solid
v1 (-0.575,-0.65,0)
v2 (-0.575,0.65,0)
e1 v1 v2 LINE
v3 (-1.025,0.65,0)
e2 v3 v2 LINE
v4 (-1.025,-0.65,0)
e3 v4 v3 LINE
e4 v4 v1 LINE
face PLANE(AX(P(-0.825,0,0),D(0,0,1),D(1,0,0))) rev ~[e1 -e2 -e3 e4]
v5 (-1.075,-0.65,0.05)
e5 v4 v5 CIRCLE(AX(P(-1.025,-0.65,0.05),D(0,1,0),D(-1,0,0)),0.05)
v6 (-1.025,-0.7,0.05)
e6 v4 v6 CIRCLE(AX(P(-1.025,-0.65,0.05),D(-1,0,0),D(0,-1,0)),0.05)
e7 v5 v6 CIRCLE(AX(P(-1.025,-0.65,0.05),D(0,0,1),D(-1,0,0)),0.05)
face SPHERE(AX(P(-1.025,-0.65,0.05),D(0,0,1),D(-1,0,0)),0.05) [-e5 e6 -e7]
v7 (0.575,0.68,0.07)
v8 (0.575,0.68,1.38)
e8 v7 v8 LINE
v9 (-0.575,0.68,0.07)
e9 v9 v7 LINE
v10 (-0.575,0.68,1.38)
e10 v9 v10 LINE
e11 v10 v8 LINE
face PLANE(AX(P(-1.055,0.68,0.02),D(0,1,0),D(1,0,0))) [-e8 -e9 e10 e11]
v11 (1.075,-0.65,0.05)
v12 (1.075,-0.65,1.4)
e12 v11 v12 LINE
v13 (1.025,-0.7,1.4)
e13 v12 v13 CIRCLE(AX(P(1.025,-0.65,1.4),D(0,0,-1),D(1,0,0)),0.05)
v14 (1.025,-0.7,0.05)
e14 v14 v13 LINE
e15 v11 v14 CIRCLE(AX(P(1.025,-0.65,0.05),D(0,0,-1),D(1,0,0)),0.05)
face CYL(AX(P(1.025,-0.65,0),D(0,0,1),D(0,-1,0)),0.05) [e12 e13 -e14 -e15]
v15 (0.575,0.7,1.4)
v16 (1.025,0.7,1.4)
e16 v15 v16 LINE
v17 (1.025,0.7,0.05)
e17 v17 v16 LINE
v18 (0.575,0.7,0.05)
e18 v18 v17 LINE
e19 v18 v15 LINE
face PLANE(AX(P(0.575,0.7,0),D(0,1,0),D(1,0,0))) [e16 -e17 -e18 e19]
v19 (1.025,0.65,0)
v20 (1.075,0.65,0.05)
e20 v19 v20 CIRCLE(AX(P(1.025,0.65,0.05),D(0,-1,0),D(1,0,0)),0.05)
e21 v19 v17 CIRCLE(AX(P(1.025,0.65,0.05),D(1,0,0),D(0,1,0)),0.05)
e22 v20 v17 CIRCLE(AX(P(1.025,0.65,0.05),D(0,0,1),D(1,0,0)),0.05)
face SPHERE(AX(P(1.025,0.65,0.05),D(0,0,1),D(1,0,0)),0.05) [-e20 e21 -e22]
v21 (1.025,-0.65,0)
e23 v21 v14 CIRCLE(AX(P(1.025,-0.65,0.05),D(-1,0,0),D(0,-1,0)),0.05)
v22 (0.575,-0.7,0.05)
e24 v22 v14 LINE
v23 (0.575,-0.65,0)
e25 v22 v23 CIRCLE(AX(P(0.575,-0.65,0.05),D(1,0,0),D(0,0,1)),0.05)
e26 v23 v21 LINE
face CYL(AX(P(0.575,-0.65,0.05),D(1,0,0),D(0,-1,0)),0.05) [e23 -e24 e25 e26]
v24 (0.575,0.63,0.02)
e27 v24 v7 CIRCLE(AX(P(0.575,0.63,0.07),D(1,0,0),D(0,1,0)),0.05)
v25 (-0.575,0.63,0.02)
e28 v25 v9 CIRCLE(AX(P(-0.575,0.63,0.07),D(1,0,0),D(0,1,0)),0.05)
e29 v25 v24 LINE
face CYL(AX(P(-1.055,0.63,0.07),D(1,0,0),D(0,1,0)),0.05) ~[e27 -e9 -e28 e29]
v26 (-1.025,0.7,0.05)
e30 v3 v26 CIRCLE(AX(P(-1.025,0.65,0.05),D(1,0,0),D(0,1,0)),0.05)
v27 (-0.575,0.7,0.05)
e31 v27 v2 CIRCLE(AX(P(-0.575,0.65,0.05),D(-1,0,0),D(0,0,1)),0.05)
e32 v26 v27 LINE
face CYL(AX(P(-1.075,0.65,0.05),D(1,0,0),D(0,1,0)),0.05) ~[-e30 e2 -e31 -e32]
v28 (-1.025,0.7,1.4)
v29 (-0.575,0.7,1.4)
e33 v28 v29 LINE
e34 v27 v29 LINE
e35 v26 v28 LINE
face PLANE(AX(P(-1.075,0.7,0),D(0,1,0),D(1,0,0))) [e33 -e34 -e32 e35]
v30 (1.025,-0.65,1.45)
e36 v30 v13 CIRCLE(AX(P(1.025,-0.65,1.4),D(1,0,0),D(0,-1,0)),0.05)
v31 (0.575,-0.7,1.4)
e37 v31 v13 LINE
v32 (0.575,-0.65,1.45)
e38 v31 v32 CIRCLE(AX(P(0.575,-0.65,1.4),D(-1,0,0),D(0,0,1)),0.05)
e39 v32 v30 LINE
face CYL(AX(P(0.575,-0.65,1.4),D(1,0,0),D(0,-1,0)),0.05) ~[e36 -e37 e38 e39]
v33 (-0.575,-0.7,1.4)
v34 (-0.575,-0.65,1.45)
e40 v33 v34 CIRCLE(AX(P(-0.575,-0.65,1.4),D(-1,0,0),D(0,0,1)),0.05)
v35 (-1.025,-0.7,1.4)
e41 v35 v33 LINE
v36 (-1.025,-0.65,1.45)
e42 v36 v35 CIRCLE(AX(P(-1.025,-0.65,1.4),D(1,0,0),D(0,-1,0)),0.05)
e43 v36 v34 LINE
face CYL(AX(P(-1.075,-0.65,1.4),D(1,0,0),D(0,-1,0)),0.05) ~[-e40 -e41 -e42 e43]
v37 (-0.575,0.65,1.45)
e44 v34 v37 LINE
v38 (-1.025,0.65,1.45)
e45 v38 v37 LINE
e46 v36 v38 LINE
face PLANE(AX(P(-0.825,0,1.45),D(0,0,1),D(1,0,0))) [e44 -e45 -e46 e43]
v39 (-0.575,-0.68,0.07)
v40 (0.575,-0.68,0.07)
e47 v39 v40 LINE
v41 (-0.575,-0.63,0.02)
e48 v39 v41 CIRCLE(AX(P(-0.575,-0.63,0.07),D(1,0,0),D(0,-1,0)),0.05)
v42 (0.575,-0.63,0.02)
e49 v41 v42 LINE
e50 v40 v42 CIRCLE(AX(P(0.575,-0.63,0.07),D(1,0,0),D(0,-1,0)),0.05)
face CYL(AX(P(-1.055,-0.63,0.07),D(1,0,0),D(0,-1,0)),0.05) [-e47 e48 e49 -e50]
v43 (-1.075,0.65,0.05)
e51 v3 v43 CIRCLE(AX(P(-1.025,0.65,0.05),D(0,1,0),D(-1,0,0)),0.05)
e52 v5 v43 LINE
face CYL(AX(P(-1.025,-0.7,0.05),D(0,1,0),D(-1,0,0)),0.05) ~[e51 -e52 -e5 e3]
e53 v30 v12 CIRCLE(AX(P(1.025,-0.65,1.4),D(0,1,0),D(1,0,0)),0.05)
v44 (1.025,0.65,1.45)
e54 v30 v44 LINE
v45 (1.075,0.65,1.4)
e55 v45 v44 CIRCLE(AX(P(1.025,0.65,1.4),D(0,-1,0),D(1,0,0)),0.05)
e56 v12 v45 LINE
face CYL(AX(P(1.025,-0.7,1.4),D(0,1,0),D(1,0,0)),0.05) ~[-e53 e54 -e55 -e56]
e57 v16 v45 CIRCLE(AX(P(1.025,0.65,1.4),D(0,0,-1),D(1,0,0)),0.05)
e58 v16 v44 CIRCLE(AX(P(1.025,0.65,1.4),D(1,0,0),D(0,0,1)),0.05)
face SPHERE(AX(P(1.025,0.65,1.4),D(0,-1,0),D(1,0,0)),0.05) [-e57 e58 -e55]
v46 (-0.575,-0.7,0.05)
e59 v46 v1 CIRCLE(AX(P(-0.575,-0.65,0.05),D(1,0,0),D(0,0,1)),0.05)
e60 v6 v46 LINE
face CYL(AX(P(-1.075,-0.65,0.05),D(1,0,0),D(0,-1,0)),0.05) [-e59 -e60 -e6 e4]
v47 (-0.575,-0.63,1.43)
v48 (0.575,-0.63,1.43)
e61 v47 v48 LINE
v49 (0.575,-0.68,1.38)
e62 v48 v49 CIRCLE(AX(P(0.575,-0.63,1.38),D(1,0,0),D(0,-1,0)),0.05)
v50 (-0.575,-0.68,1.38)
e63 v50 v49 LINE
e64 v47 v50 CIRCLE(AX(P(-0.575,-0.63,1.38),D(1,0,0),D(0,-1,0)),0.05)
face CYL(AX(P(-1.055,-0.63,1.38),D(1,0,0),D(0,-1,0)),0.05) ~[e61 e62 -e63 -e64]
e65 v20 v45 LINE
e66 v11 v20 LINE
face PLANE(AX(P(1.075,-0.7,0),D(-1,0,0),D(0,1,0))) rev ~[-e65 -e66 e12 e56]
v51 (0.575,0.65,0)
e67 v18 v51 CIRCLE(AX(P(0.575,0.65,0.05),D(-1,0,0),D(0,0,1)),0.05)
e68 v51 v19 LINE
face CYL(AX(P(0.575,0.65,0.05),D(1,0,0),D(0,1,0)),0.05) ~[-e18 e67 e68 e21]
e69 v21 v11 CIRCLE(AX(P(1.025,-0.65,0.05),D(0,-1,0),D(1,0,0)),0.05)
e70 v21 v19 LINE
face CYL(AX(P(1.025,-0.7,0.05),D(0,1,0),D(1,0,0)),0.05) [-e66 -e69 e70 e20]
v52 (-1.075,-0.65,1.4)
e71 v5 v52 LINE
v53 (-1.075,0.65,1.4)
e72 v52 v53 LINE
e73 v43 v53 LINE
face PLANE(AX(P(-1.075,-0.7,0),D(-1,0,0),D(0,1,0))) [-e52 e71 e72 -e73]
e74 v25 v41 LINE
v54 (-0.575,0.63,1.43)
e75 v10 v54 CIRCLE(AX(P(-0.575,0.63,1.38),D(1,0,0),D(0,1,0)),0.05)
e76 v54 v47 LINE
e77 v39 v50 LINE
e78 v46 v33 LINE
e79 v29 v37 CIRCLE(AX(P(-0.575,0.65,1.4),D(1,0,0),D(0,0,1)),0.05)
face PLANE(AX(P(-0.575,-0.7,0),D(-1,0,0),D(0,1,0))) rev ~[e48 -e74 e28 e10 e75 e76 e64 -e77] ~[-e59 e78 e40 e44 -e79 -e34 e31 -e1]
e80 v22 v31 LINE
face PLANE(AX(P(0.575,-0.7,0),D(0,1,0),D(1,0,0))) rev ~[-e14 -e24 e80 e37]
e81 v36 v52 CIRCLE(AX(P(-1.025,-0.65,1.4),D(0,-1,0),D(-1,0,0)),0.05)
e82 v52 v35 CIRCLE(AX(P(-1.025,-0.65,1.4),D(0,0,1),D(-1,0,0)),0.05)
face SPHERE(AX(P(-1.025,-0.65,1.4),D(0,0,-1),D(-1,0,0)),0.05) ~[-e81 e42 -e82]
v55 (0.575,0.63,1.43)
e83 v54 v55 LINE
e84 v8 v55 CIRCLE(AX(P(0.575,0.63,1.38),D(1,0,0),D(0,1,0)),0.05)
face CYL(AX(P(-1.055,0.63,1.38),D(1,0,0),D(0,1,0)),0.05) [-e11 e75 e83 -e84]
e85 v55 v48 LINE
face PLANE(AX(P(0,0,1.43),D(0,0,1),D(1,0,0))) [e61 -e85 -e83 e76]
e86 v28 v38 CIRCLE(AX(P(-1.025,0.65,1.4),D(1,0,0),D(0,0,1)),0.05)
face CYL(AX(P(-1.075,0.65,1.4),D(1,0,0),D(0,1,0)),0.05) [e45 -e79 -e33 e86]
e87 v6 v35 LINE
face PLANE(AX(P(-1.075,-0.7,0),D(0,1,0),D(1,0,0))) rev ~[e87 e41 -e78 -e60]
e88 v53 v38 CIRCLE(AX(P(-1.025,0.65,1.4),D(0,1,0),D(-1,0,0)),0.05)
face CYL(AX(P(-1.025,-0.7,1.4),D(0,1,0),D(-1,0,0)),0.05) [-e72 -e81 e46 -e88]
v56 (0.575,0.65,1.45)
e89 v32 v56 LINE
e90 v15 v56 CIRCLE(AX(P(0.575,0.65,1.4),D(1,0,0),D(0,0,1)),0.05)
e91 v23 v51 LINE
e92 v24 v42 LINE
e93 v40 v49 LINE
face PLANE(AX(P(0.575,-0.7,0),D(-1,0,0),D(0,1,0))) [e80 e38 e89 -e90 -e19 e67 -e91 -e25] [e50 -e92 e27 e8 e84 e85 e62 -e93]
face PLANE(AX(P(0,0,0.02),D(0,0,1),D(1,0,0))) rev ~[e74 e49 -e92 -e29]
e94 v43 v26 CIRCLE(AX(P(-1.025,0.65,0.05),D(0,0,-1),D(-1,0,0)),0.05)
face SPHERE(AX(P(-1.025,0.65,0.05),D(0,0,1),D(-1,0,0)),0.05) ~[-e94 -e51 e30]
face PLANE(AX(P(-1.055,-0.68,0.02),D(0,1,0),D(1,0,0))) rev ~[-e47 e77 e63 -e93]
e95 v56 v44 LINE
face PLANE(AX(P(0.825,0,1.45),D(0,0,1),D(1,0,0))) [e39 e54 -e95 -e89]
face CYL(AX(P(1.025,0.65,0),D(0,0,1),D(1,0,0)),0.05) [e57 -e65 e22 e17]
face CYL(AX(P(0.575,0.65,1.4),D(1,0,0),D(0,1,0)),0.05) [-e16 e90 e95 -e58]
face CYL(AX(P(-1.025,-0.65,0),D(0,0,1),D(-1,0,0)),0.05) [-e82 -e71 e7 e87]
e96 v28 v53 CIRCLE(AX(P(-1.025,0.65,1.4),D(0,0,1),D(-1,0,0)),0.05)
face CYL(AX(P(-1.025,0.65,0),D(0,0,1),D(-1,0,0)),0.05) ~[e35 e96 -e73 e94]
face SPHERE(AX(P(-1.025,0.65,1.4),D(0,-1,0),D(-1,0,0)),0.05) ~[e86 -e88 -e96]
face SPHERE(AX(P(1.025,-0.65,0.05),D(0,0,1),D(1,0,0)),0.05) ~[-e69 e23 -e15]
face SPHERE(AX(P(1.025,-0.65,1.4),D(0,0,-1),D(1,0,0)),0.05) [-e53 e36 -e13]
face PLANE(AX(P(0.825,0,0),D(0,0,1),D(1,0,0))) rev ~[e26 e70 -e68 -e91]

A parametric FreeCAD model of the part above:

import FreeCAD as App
import Part
import Sketcher

V = App.Vector


def edges_at(feature, points):
    """Names of the edges that pass closest to the given points."""
    edges = feature.Shape.Edges
    near = lambda p: min(range(len(edges)), key=lambda i: edges[i].distToShape(Part.Vertex(*p))[0])
    return sorted({f"Edge{near(p) + 1}" for p in points})


def add_polygon(sketch, points):
    """Adds a closed chain of lines whose ends are joined by coincident constraints."""
    first, n = sketch.GeometryCount, len(points)
    for a, b in zip(points, points[1:] + points[:1]):
        sketch.addGeometry(Part.LineSegment(App.Vector(*a, 0), App.Vector(*b, 0)), False)
    for i in range(n):
        sketch.addConstraint(Sketcher.Constraint("Coincident", first + i, 2, first + (i + 1) % n, 1))

doc = App.newDocument("Part")
body = doc.addObject("PartDesign::Body", "Body")

sketch1 = body.newObject("Sketcher::SketchObject", "Sketch")
sketch1.AttachmentSupport = (doc.getObject("XY_Plane"), [""])
sketch1.MapMode = "FlatFace"
add_polygon(sketch1, [(-1.1, 0.7), (-1.1, -0.7), (-0.6, -0.7), (-0.6, 0.7)])
sketch1.addConstraint(Sketcher.Constraint("Vertical", 0))
sketch1.addConstraint(Sketcher.Constraint("Horizontal", 1))
sketch1.addConstraint(Sketcher.Constraint("Vertical", 2))
sketch1.addConstraint(Sketcher.Constraint("Horizontal", 3))
sketch1.addConstraint(Sketcher.Constraint("DistanceX", 1, 1, 1, 2, 0.5))
sketch1.addConstraint(Sketcher.Constraint("DistanceY", 0, 2, 0, 1, 1.4))
sketch1.addConstraint(Sketcher.Constraint("DistanceY", 0, 2, -1, 1, 0.7))
sketch1.addConstraint(Sketcher.Constraint("DistanceX", 0, 2, -1, 1, 1.075))
pad1 = body.newObject("PartDesign::Pad", "Pad")
pad1.Profile = sketch1
pad1.Length = 1.45
doc.recompute()

fillet = body.newObject("PartDesign::Fillet", "Fillet")
fillet.Base = (pad1, edges_at(pad1, [
    (-1.075, -0.7, 0.725),
    (-1.075, 0, 1.45),
    (-1.075, 0.7, 0.725),
    (-1.075, 0, 0),
    (-0.825, -0.7, 0),
    (-0.825, -0.7, 1.45),
    (-0.825, 0.7, 0),
    (-0.825, 0.7, 1.45),
]))
fillet.Radius = 0.05
body2 = doc.addObject("PartDesign::Body", "Body001")

sketch2 = body2.newObject("Sketcher::SketchObject", "Sketch001")
sketch2.AttachmentSupport = (doc.getObject("XY_Plane001"), [""])
sketch2.MapMode = "FlatFace"
add_polygon(sketch2, [(0.6, 0.7), (0.6, -0.7), (1.1, -0.7), (1.1, 0.7)])
sketch2.addConstraint(Sketcher.Constraint("Vertical", 0))
sketch2.addConstraint(Sketcher.Constraint("Horizontal", 1))
sketch2.addConstraint(Sketcher.Constraint("Vertical", 2))
sketch2.addConstraint(Sketcher.Constraint("Horizontal", 3))
sketch2.addConstraint(Sketcher.Constraint("DistanceX", 1, 1, 1, 2, 0.5))
sketch2.addConstraint(Sketcher.Constraint("DistanceY", 0, 2, 0, 1, 1.4))
sketch2.addConstraint(Sketcher.Constraint("DistanceY", 0, 2, -1, 1, 0.7))
sketch2.addConstraint(Sketcher.Constraint("DistanceX", -1, 1, 0, 2, 0.575))
pad2 = body2.newObject("PartDesign::Pad", "Pad001")
pad2.Profile = sketch2
pad2.Length = 1.45
doc.recompute()

fillet2 = body2.newObject("PartDesign::Fillet", "Fillet001")
fillet2.Base = (pad2, edges_at(pad2, [
    (1.075, -0.7, 0.725),
    (1.075, 0, 1.45),
    (1.075, 0.7, 0.725),
    (1.075, 0, 0),
    (0.825, -0.7, 0),
    (0.825, -0.7, 1.45),
    (0.825, 0.7, 0),
    (0.825, 0.7, 1.45),
]))
fillet2.Radius = 0.05
body3 = doc.addObject("PartDesign::Body", "Body002")

sketch3 = body3.newObject("Sketcher::SketchObject", "Sketch002")
sketch3.AttachmentSupport = (doc.getObject("XY_Plane002"), [""])
sketch3.MapMode = "FlatFace"
sketch3.AttachmentOffset = App.Placement(V(0, 0, 0.02), App.Rotation())
add_polygon(sketch3, [(-1.1, 0.7), (-1.1, -0.7), (1.1, -0.7), (1.1, 0.7)])
sketch3.addConstraint(Sketcher.Constraint("Vertical", 0))
sketch3.addConstraint(Sketcher.Constraint("Horizontal", 1))
sketch3.addConstraint(Sketcher.Constraint("Vertical", 2))
sketch3.addConstraint(Sketcher.Constraint("Horizontal", 3))
sketch3.addConstraint(Sketcher.Constraint("Symmetric", 0, 2, 2, 2, -1, 1))
sketch3.addConstraint(Sketcher.Constraint("DistanceX", 1, 1, 1, 2, 2.11))
sketch3.addConstraint(Sketcher.Constraint("DistanceY", 0, 2, 0, 1, 1.36))
pad3 = body3.newObject("PartDesign::Pad", "Pad002")
pad3.Profile = sketch3
pad3.Length = 1.41
doc.recompute()

fillet3 = body3.newObject("PartDesign::Fillet", "Fillet002")
fillet3.Base = (pad3, edges_at(pad3, [
    (0, -0.68, 0.02),
    (0, -0.68, 1.43),
    (0, 0.68, 0.02),
    (0, 0.68, 1.43),
]))
fillet3.Radius = 0.05
doc.recompute()

boolean = body3.newObject("PartDesign::Boolean", "Boolean")
boolean.Type = "Fuse"
boolean.addObjects([body])
doc.recompute()

boolean2 = body3.newObject("PartDesign::Boolean", "Boolean001")
boolean2.Type = "Fuse"
boolean2.addObjects([body2])

doc.recompute()
